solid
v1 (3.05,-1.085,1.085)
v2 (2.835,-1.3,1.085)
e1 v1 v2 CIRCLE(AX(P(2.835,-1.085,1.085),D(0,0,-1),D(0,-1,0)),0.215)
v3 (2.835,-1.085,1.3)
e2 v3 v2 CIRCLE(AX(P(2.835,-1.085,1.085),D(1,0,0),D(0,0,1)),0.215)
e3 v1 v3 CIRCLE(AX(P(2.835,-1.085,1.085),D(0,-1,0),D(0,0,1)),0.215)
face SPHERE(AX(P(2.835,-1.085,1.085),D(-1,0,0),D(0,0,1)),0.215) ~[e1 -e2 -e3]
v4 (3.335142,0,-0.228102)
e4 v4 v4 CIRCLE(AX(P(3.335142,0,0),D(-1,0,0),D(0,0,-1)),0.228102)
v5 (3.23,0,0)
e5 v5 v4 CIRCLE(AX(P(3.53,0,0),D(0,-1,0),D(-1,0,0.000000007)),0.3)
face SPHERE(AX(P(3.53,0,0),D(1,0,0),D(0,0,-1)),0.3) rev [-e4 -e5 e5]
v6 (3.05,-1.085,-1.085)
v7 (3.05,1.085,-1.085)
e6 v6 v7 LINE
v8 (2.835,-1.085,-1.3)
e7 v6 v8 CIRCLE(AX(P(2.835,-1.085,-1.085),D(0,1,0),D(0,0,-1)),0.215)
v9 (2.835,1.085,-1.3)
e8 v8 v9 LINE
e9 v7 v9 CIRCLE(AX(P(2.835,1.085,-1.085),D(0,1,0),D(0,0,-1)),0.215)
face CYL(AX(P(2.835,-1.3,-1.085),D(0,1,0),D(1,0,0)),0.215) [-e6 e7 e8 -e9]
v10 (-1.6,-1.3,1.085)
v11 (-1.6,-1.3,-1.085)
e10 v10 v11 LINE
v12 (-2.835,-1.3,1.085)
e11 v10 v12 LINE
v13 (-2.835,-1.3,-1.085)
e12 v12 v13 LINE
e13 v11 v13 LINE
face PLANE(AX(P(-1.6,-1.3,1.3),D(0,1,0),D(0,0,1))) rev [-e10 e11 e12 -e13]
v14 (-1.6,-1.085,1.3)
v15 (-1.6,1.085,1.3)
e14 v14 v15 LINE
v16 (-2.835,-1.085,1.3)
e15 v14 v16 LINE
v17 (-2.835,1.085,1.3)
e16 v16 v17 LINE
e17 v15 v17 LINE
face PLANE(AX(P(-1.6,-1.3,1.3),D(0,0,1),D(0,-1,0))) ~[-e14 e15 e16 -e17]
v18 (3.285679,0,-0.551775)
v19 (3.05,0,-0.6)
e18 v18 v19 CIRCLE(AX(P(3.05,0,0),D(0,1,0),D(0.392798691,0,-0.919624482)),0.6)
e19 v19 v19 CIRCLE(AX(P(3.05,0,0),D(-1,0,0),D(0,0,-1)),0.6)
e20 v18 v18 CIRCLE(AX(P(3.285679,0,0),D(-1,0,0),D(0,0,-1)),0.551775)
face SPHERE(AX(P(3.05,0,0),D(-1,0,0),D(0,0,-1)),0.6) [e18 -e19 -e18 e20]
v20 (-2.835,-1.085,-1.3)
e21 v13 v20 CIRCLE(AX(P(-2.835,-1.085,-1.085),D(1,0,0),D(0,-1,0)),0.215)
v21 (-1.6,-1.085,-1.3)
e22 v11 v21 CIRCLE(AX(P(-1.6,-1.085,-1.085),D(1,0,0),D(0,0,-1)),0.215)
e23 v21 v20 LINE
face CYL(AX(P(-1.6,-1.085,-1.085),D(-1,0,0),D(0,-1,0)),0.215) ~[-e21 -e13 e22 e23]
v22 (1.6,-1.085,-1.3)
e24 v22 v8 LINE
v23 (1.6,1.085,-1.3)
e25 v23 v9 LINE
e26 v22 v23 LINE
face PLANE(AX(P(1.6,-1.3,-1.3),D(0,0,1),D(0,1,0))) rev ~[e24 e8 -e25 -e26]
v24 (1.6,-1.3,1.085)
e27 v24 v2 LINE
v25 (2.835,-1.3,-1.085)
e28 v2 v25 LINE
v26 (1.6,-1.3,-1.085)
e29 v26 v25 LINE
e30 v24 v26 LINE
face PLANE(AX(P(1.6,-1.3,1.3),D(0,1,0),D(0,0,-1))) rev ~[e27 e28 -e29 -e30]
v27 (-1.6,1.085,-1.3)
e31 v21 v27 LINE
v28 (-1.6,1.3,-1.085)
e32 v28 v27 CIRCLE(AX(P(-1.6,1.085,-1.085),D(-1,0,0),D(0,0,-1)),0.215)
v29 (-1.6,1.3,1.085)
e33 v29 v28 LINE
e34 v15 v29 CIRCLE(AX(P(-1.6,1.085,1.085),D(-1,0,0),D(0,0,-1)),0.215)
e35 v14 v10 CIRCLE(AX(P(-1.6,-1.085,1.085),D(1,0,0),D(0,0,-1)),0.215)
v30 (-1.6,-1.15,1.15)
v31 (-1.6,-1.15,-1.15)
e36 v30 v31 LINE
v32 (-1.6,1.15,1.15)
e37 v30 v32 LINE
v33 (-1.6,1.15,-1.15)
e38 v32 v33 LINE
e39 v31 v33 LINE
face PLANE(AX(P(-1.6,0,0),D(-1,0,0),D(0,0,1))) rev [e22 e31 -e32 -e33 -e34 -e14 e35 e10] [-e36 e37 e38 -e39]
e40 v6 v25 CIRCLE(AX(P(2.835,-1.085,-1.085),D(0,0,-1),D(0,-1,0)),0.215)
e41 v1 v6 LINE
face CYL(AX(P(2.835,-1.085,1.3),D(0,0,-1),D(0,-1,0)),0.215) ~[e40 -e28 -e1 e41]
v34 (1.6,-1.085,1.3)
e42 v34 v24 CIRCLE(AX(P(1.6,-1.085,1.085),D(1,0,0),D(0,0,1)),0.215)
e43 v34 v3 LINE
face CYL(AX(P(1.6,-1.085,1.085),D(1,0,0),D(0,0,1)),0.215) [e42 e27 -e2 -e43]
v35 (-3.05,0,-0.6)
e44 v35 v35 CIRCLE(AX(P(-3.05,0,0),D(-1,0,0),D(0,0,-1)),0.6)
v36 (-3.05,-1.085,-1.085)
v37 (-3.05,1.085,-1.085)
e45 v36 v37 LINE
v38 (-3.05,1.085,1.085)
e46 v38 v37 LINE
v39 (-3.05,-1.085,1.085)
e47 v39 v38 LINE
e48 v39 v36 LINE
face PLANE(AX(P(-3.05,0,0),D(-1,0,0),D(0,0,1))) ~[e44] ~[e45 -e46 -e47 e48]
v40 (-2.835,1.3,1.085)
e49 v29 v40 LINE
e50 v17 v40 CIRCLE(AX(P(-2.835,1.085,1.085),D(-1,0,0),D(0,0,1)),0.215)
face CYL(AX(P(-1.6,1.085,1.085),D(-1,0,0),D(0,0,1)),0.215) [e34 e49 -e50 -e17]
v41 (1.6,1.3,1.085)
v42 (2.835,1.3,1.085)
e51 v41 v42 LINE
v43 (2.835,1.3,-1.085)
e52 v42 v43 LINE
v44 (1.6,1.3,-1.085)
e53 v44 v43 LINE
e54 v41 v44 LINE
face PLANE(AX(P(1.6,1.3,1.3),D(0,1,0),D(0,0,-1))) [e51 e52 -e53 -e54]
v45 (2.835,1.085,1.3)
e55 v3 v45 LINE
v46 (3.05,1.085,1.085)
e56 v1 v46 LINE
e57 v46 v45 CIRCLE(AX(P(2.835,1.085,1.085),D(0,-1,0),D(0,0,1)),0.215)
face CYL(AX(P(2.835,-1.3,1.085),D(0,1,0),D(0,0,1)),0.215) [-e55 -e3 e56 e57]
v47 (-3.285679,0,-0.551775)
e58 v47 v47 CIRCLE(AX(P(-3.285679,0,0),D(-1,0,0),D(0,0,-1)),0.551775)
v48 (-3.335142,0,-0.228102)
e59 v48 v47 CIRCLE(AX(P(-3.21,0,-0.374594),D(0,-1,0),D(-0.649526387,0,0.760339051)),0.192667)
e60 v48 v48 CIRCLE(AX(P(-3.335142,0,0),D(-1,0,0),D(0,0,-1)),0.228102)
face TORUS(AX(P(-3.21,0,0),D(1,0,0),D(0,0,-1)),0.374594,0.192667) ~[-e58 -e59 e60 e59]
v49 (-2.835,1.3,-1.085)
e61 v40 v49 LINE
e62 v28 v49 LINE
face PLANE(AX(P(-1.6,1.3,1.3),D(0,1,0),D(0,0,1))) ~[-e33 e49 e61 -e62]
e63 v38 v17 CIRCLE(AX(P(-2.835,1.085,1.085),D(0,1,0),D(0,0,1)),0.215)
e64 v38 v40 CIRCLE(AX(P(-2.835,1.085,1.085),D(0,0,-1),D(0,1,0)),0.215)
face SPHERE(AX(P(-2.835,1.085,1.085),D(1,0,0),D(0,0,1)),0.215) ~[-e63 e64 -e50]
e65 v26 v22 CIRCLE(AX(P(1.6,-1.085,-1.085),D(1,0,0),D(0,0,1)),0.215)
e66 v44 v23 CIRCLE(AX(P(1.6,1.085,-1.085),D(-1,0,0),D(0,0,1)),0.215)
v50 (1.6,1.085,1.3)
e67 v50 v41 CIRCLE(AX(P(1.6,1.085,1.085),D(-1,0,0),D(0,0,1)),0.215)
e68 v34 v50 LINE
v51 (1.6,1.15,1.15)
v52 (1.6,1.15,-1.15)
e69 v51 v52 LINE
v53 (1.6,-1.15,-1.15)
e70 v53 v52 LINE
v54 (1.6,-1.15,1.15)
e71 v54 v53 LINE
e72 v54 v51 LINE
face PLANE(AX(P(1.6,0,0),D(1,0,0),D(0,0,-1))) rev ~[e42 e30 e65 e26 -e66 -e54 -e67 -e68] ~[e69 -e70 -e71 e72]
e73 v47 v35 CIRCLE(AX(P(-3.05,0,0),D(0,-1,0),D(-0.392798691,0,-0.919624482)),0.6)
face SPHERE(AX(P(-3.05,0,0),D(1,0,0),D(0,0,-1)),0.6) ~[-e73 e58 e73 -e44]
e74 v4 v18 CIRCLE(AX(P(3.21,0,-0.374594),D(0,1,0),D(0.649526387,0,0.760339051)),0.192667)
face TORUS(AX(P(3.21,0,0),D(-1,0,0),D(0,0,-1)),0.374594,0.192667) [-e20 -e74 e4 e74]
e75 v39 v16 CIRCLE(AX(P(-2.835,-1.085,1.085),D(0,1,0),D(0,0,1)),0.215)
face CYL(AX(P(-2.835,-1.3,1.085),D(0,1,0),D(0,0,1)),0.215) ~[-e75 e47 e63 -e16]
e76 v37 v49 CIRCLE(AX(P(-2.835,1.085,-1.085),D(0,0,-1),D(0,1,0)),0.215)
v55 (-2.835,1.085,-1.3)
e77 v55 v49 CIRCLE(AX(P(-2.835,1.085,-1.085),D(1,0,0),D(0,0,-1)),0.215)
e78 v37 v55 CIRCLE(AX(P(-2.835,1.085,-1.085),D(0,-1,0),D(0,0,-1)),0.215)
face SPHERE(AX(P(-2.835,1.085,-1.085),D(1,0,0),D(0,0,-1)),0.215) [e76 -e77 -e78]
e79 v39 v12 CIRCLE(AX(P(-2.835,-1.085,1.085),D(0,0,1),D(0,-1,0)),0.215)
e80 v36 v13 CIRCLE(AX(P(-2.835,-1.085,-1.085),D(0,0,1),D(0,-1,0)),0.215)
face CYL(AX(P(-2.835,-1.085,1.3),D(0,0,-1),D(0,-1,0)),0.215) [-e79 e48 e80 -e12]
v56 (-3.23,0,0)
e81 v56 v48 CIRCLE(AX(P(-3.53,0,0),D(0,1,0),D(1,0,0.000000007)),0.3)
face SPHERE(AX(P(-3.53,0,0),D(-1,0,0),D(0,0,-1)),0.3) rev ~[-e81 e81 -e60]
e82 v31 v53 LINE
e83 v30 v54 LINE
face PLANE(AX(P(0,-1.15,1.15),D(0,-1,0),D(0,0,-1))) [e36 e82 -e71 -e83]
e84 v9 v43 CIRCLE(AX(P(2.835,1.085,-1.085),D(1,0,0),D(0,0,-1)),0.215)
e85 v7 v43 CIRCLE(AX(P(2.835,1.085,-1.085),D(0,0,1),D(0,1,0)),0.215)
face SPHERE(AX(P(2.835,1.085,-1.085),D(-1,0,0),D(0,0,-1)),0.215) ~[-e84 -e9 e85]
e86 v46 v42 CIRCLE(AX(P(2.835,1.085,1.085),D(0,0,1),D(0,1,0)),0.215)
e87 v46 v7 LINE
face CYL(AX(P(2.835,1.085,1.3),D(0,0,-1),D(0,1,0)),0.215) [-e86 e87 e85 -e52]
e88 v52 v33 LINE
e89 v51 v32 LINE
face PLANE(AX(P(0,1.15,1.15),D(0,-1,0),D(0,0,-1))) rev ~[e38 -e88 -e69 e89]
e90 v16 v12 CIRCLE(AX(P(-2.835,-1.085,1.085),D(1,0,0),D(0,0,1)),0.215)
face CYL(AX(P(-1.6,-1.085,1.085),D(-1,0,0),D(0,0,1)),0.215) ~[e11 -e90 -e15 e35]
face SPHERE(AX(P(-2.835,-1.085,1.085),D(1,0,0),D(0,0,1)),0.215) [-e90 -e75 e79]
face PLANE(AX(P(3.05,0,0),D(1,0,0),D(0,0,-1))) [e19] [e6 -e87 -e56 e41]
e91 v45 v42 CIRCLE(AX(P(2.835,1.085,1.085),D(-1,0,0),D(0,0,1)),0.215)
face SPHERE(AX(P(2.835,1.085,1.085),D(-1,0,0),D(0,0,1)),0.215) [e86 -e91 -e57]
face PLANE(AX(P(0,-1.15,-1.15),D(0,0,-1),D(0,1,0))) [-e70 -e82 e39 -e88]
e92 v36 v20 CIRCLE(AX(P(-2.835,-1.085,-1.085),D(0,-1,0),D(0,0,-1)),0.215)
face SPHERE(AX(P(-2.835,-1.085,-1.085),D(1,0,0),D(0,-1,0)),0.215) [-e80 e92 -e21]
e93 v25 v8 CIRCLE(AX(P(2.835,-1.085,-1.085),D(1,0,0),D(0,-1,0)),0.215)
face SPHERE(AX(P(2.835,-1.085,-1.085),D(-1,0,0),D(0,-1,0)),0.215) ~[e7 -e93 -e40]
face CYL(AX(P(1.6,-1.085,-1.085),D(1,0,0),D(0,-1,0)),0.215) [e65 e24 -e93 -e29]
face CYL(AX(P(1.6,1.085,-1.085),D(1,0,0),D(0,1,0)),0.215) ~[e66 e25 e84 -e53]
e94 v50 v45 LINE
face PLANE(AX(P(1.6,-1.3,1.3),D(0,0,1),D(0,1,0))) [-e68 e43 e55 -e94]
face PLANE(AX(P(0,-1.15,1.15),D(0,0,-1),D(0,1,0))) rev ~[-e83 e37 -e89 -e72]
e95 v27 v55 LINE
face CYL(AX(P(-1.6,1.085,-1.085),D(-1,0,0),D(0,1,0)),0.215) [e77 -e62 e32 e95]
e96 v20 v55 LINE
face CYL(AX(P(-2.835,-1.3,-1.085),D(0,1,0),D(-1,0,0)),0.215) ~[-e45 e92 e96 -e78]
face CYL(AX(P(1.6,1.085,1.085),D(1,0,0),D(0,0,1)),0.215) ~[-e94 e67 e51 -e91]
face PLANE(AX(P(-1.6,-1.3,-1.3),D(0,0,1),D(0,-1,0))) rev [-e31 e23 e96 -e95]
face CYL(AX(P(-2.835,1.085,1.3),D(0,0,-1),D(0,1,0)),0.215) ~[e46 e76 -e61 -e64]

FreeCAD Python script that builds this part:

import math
import FreeCAD as App
import Part
import Sketcher

V = App.Vector


def edges_at(feature, points):
    """Names of the edges that pass closest to the given points."""
    edges = feature.Shape.Edges
    near = lambda p: min(range(len(edges)), key=lambda i: edges[i].distToShape(Part.Vertex(*p))[0])
    return sorted({f"Edge{near(p) + 1}" for p in points})


def add_polygon(sketch, points):
    """Adds a closed chain of lines whose ends are joined by coincident constraints."""
    first, n = sketch.GeometryCount, len(points)
    for a, b in zip(points, points[1:] + points[:1]):
        sketch.addGeometry(Part.LineSegment(App.Vector(*a, 0), App.Vector(*b, 0)), False)
    for i in range(n):
        sketch.addConstraint(Sketcher.Constraint("Coincident", first + i, 2, first + (i + 1) % n, 1))

doc = App.newDocument("Part")
body = doc.addObject("PartDesign::Body", "Body")

# Sketch on YZ plane
sketch1 = doc.addObject("Sketcher::SketchObject", "Sketch")
body.addObject(sketch1)
sketch1.AttachmentSupport = (doc.YZ_Plane, [""])
sketch1.MapMode = "FlatFace"
add_polygon(sketch1, [(1.1, 1.1), (-1.1, 1.1), (-1.1, -1.1), (1.1, -1.1)])  # lines 0-3
sketch1.addConstraint([
    Sketcher.Constraint("Horizontal", 0),
    Sketcher.Constraint("Vertical", 1),
    Sketcher.Constraint("Horizontal", 2),
    Sketcher.Constraint("Vertical", 3),
    Sketcher.Constraint("Symmetric", 0, 2, 2, 2, -1, 1),
    Sketcher.Constraint("Equal", 2, 1),
    Sketcher.Constraint("DistanceX", 0, 2, 0, 1, 2.3),
])
pad1 = doc.addObject("PartDesign::Pad", "Pad")
body.addObject(pad1)
pad1.Profile = sketch1
pad1.Length = 3.2
pad1.Midplane = True

# Sketch on YZ plane
sketch2 = doc.addObject("Sketcher::SketchObject", "Sketch001")
body.addObject(sketch2)
sketch2.AttachmentSupport = (doc.YZ_Plane, [""])
sketch2.MapMode = "FlatFace"
sketch2.AttachmentOffset = App.Placement(V(0, 0, 1.6), App.Rotation())
add_polygon(sketch2, [(1.3, 1.3), (-1.3, 1.3), (-1.3, -1.3), (1.3, -1.3)])  # lines 0-3
sketch2.addConstraint([
    Sketcher.Constraint("Horizontal", 0),
    Sketcher.Constraint("Vertical", 1),
    Sketcher.Constraint("Horizontal", 2),
    Sketcher.Constraint("Vertical", 3),
    Sketcher.Constraint("Symmetric", 0, 2, 2, 2, -1, 1),
    Sketcher.Constraint("Equal", 2, 1),
    Sketcher.Constraint("DistanceX", 0, 2, 0, 1, 2.6),
])
pad2 = doc.addObject("PartDesign::Pad", "Pad001")
body.addObject(pad2)
pad2.Profile = sketch2
pad2.Length = 1.45

# Sketch on XZ plane
sketch3 = doc.addObject("Sketcher::SketchObject", "Sketch002")
body.addObject(sketch3)
sketch3.AttachmentSupport = (doc.XZ_Plane, [""])
sketch3.MapMode = "FlatFace"
sketch3.addGeometry([
    Part.LineSegment(V(3.05, -0.6, 0), V(3.05, 0, 0)),  # 0
    Part.LineSegment(V(3.05, 0, 0), V(3.23, 0, 0)),  # 1
    Part.ArcOfCircle(Part.Circle(V(3.53, 0, 0), V(0, 0, 1), 0.3), math.radians(180), math.radians(229)),  # 2
    Part.ArcOfCircle(Part.Circle(V(3.21, -0.37, 0), V(0, 0, 1), 0.19), math.radians(-67), math.radians(49)),  # 3
    Part.ArcOfCircle(Part.Circle(V(3.05, 0, 0), V(0, 0, 1), 0.6), math.radians(-90), math.radians(-67)),  # 4
], False)
sketch3.addConstraint([
    Sketcher.Constraint("Coincident", 0, 2, 1, 1),
    Sketcher.Constraint("Coincident", 1, 2, 2, 1),
    Sketcher.Constraint("Tangent", 2, 2, 3, 2),
    Sketcher.Constraint("Tangent", 3, 1, 4, 2),
    Sketcher.Constraint("Coincident", 4, 1, 0, 1),
    Sketcher.Constraint("Vertical", 0),
    Sketcher.Constraint("Horizontal", 1),
    Sketcher.Constraint("Coincident", 0, 2, 4, 3),
    Sketcher.Constraint("PointOnObject", 2, 3, -1),
    Sketcher.Constraint("PointOnObject", 4, 3, -1),
    Sketcher.Constraint("Radius", 2, 0.3),
    Sketcher.Constraint("Radius", 4, 0.6),
    Sketcher.Constraint("DistanceX", 1, 1, 1, 2, 0.18),
    Sketcher.Constraint("DistanceX", -1, 1, 2, 3, 3.53),
    Sketcher.Constraint("DistanceX", -1, 1, 3, 3, 3.21),
])
revolution = doc.addObject("PartDesign::Revolution", "Revolution")
body.addObject(revolution)
revolution.Profile = sketch3
revolution.ReferenceAxis = (sketch3, ["H_Axis"])
revolution.Angle = 360
doc.recompute()

fillet = doc.addObject("PartDesign::Fillet", "Fillet")
body.addObject(fillet)
fillet.Base = (revolution, edges_at(revolution, [
    (2.325, 1.3, 1.3),
    (2.325, -1.3, 1.3),
    (2.325, -1.3, -1.3),
    (2.325, 1.3, -1.3),
    (3.05, 0, 1.3),
    (3.05, -1.3, 0),
    (3.05, 0, -1.3),
    (3.05, 1.3, 0),
]))
fillet.Radius = 0.215
doc.recompute()

mirrored = doc.addObject("PartDesign::Mirrored", "Mirrored")
body.addObject(mirrored)
mirrored.Originals = [pad2, revolution]
mirrored.MirrorPlane = (doc.YZ_Plane, [""])
body.Tip = mirrored
doc.recompute()

fillet2 = doc.addObject("PartDesign::Fillet", "Fillet001")
body.addObject(fillet2)
fillet2.Base = (mirrored, edges_at(mirrored, [
    (-2.325, 1.3, 1.3),
    (-2.325, -1.3, 1.3),
    (-2.325, -1.3, -1.3),
    (-2.325, 1.3, -1.3),
    (-3.05, 0, 1.3),
    (-3.05, -1.3, 0),
    (-3.05, 0, -1.3),
    (-3.05, 1.3, 0),
]))
fillet2.Radius = 0.215

doc.recompute()
